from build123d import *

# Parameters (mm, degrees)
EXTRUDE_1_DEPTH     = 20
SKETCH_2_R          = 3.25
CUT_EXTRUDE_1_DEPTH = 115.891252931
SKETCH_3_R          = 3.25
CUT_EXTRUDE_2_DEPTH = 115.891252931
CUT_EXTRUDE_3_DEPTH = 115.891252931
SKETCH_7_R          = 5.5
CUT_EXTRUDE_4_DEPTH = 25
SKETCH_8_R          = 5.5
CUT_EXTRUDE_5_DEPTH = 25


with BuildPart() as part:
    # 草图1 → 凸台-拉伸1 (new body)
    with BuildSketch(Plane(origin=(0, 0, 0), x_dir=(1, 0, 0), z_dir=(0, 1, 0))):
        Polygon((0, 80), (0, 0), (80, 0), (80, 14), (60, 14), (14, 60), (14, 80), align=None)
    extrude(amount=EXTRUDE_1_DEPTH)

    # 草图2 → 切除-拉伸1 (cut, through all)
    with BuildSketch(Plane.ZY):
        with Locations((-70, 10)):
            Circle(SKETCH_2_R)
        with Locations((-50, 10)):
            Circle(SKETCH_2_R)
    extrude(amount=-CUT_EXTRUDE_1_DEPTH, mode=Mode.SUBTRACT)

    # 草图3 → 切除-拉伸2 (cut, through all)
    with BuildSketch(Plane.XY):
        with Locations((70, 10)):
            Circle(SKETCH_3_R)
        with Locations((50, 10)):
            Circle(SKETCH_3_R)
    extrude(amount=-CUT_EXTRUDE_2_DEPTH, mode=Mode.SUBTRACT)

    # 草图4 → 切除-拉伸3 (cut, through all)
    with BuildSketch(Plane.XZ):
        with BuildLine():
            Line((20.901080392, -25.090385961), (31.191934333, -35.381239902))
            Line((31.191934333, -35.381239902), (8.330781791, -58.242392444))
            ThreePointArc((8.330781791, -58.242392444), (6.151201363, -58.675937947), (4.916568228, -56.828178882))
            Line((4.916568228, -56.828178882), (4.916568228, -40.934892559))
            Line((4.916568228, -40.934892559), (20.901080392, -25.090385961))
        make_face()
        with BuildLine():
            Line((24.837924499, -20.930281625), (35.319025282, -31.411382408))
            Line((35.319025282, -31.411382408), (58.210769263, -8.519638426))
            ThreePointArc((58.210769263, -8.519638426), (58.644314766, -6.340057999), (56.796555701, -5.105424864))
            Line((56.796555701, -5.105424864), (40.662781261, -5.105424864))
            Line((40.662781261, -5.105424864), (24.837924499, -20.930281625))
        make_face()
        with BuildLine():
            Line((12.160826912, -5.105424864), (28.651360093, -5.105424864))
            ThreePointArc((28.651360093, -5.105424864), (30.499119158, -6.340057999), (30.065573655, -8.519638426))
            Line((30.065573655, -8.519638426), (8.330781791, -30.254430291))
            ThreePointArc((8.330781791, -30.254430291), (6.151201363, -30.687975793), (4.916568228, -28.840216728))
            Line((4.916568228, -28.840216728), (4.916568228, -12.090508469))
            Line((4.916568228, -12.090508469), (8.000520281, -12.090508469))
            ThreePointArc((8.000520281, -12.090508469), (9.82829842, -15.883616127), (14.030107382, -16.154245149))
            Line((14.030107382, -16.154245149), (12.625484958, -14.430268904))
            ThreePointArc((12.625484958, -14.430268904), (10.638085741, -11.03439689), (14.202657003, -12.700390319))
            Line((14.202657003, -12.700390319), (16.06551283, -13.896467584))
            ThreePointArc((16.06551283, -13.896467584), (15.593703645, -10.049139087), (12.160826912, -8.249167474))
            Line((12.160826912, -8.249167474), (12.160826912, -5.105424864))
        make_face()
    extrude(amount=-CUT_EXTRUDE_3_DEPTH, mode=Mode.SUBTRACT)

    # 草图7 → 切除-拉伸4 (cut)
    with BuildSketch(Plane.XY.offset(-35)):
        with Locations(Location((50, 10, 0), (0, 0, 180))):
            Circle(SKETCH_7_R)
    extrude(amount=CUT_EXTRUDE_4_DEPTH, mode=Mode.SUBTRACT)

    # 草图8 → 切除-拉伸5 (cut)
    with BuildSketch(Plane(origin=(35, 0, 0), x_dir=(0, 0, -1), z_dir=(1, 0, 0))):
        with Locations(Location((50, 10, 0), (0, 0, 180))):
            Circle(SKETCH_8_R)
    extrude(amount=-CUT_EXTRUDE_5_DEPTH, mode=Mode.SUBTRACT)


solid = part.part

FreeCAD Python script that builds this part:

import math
import FreeCAD as App
import Part
import Sketcher
from FreeCAD import Vector
Q = App.Units.Quantity

doc = App.newDocument("Part")
body = doc.addObject("PartDesign::Body", "Body")

# Sketch on XZ plane
sketch1 = body.newObject("Sketcher::SketchObject", "Sketch")
sketch1.AttachmentSupport = (doc.getObject("XZ_Plane"), [""])
sketch1.MapMode = "FlatFace"
sketch1.addGeometry([
    Part.LineSegment(Vector(0, -80, 0), Vector(0, 0, 0)),  # 0
    Part.LineSegment(Vector(0, 0, 0), Vector(80, 0, 0)),  # 1
    Part.LineSegment(Vector(80, 0, 0), Vector(80, -14, 0)),  # 2
    Part.LineSegment(Vector(80, -14, 0), Vector(60, -14, 0)),  # 3
    Part.LineSegment(Vector(60, -14, 0), Vector(14, -60, 0)),  # 4
    Part.LineSegment(Vector(14, -60, 0), Vector(14, -80, 0)),  # 5
    Part.LineSegment(Vector(14, -80, 0), Vector(0, -80, 0)),  # 6
], False)
sketch1.addConstraint([
    Sketcher.Constraint("Coincident", 0, 2, 1, 1),
    Sketcher.Constraint("Coincident", 1, 2, 2, 1),
    Sketcher.Constraint("Coincident", 2, 2, 3, 1),
    Sketcher.Constraint("Coincident", 3, 2, 4, 1),
    Sketcher.Constraint("Coincident", 4, 2, 5, 1),
    Sketcher.Constraint("Coincident", 5, 2, 6, 1),
    Sketcher.Constraint("Coincident", 6, 2, 0, 1),
    Sketcher.Constraint("Vertical", 0),
    Sketcher.Constraint("Horizontal", 1),
    Sketcher.Constraint("Vertical", 2),
    Sketcher.Constraint("Horizontal", 3),
    Sketcher.Constraint("Vertical", 5),
    Sketcher.Constraint("Horizontal", 6),
    Sketcher.Constraint("Coincident", 0, 2, -1, 1),
    Sketcher.Constraint("Equal", 1, 0),
    Sketcher.Constraint("Equal", 6, 2),
    Sketcher.Constraint("Equal", 3, 5),
    Sketcher.Constraint("DistanceX", 1, 1, 1, 2, 80.0),
    Sketcher.Constraint("DistanceX", 3, 2, 3, 1, 20.0),
    Sketcher.Constraint("DistanceX", 6, 2, 6, 1, 14.0),
])
pad1 = body.newObject("PartDesign::Pad", "Pad")
pad1.Profile = sketch1
pad1.Length = 20
pad1.Reversed = True

# Sketch on YZ plane
sketch2 = body.newObject("Sketcher::SketchObject", "Sketch001")
sketch2.AttachmentSupport = (doc.getObject("YZ_Plane"), [""])
sketch2.MapMode = "FlatFace"
sketch2.addGeometry([
    Part.Circle(Vector(10, -70, 0), Vector(0, 0, 1), 3.2),
    Part.Circle(Vector(10, -50, 0), Vector(0, 0, 1), 3.2),
], False)
sketch2.addConstraint([
    Sketcher.Constraint("Equal", 0, 1),
    Sketcher.Constraint("Vertical", 0, 3, 1, 3),
    Sketcher.Constraint("Diameter", 0, 6.5),
    Sketcher.Constraint("DistanceX", -1, 1, 0, 3, 10.0),
    Sketcher.Constraint("DistanceY", 0, 3, -1, 1, 70.0),
    Sketcher.Constraint("DistanceY", 1, 3, -1, 1, 50.0),
])
pocket1 = body.newObject("PartDesign::Pocket", "Pocket")
pocket1.Profile = sketch2
pocket1.Type = "ThroughAll"
pocket1.Reversed = True

# Sketch on XY plane
sketch3 = body.newObject("Sketcher::SketchObject", "Sketch002")
sketch3.AttachmentSupport = (doc.getObject("XY_Plane"), [""])
sketch3.MapMode = "FlatFace"
sketch3.addGeometry([
    Part.Circle(Vector(70, 10, 0), Vector(0, 0, 1), 3.2),
    Part.Circle(Vector(50, 10, 0), Vector(0, 0, 1), 3.2),
], False)
sketch3.addConstraint([
    Sketcher.Constraint("Equal", 0, 1),
    Sketcher.Constraint("Horizontal", 0, 3, 1, 3),
    Sketcher.Constraint("Diameter", 0, 6.5),
    Sketcher.Constraint("DistanceX", -1, 1, 0, 3, 70.0),
    Sketcher.Constraint("DistanceY", -1, 1, 0, 3, 10.0),
    Sketcher.Constraint("DistanceX", -1, 1, 1, 3, 50.0),
])
pocket2 = body.newObject("PartDesign::Pocket", "Pocket001")
pocket2.Profile = sketch3
pocket2.Type = "ThroughAll"

# Sketch on XZ plane
sketch4 = body.newObject("Sketcher::SketchObject", "Sketch003")
sketch4.AttachmentSupport = (doc.getObject("XZ_Plane"), [""])
sketch4.MapMode = "FlatFace"
sketch4.addGeometry([
    Part.LineSegment(Vector(31.2, -35.4, 0), Vector(20.9, -25.1, 0)),  # 0
    Part.LineSegment(Vector(20.9, -25.1, 0), Vector(4.9, -40.9, 0)),  # 1
    Part.LineSegment(Vector(4.9, -40.9, 0), Vector(4.9, -56.8, 0)),  # 2
    Part.ArcOfCircle(Part.Circle(Vector(6.9, -56.8, 0), Vector(0, 0, 1), 2), math.radians(180), math.radians(315)),  # 3
    Part.LineSegment(Vector(8.3, -58.2, 0), Vector(31.2, -35.4, 0)),  # 4
    Part.LineSegment(Vector(24.8, -20.9, 0), Vector(35.3, -31.4, 0)),  # 5
    Part.LineSegment(Vector(35.3, -31.4, 0), Vector(58.2, -8.5, 0)),  # 6
    Part.ArcOfCircle(Part.Circle(Vector(56.8, -7.1, 0), Vector(0, 0, 1), 2), math.radians(-45), math.radians(90)),  # 7
    Part.LineSegment(Vector(56.8, -5.1, 0), Vector(40.7, -5.1, 0)),  # 8
    Part.LineSegment(Vector(40.7, -5.1, 0), Vector(24.8, -20.9, 0)),  # 9
    Part.LineSegment(Vector(28.7, -5.1, 0), Vector(12.2, -5.1, 0)),  # 10
    Part.LineSegment(Vector(12.2, -5.1, 0), Vector(12.2, -8.2, 0)),  # 11
    Part.ArcOfCircle(Part.Circle(Vector(12.2, -12.4, 0), Vector(0, 0, 1), 4.2), math.radians(-21), math.radians(90)),  # 12
    Part.LineSegment(Vector(16.1, -13.9, 0), Vector(14.2, -12.7, 0)),  # 13
    Part.ArcOfCircle(Part.Circle(Vector(12.2, -12.4, 0), Vector(0, 0, 1), 2.1), math.radians(-8), math.radians(283)),  # 14
    Part.LineSegment(Vector(12.6, -14.4, 0), Vector(14, -16.2, 0)),  # 15
    Part.ArcOfCircle(Part.Circle(Vector(12.2, -12.4, 0), Vector(0, 0, 1), 4.2), math.radians(175), math.radians(297)),  # 16
    Part.LineSegment(Vector(8, -12.1, 0), Vector(4.9, -12.1, 0)),  # 17
    Part.LineSegment(Vector(4.9, -12.1, 0), Vector(4.9, -28.8, 0)),  # 18
    Part.ArcOfCircle(Part.Circle(Vector(6.9, -28.8, 0), Vector(0, 0, 1), 2), math.radians(180), math.radians(315)),  # 19
    Part.LineSegment(Vector(8.3, -30.3, 0), Vector(30.1, -8.5, 0)),  # 20
    Part.ArcOfCircle(Part.Circle(Vector(28.7, -7.1, 0), Vector(0, 0, 1), 2), math.radians(-45), math.radians(90)),  # 21
], False)
sketch4.addConstraint([
    Sketcher.Constraint("Coincident", 0, 2, 1, 1),
    Sketcher.Constraint("Coincident", 1, 2, 2, 1),
    Sketcher.Constraint("Tangent", 2, 2, 3, 1),
    Sketcher.Constraint("Tangent", 3, 2, 4, 1),
    Sketcher.Constraint("Coincident", 4, 2, 0, 1),
    Sketcher.Constraint("Coincident", 5, 2, 6, 1),
    Sketcher.Constraint("Tangent", 6, 2, 7, 1),
    Sketcher.Constraint("Tangent", 7, 2, 8, 1),
    Sketcher.Constraint("Coincident", 8, 2, 9, 1),
    Sketcher.Constraint("Coincident", 9, 2, 5, 1),
    Sketcher.Constraint("Coincident", 10, 2, 11, 1),
    Sketcher.Constraint("Coincident", 11, 2, 12, 2),
    Sketcher.Constraint("Coincident", 12, 1, 13, 1),
    Sketcher.Constraint("Coincident", 13, 2, 14, 1),
    Sketcher.Constraint("Coincident", 14, 2, 15, 1),
    Sketcher.Constraint("Coincident", 15, 2, 16, 2),
    Sketcher.Constraint("Coincident", 16, 1, 17, 1),
    Sketcher.Constraint("Coincident", 17, 2, 18, 1),
    Sketcher.Constraint("Tangent", 18, 2, 19, 1),
    Sketcher.Constraint("Tangent", 19, 2, 20, 1),
    Sketcher.Constraint("Tangent", 20, 2, 21, 1),
    Sketcher.Constraint("Tangent", 21, 2, 10, 1),
    Sketcher.Constraint("Vertical", 2),
    Sketcher.Constraint("Horizontal", 8),
    Sketcher.Constraint("Horizontal", 10),
    Sketcher.Constraint("Vertical", 11),
    Sketcher.Constraint("Horizontal", 17),
    Sketcher.Constraint("Vertical", 18),
    Sketcher.Constraint("Coincident", 14, 3, 12, 3),
    Sketcher.Constraint("Coincident", 16, 3, 12, 3),
    Sketcher.Constraint("Equal", 3, 7),
    Sketcher.Constraint("Equal", 12, 16),
    Sketcher.Constraint("Equal", 7, 19),
    Sketcher.Constraint("Equal", 19, 21),
    Sketcher.Constraint("Perpendicular", 0, 4),
    Sketcher.Constraint("Perpendicular", 4, 5),
    Sketcher.Constraint("Perpendicular", 5, 6),
    Sketcher.Constraint("Parallel", 6, 9),
    Sketcher.Constraint("Parallel", 9, 20),
    Sketcher.Constraint("Horizontal", 7, 3, 21, 3),
    Sketcher.Constraint("Vertical", 3, 3, 19, 3),
    Sketcher.Constraint("Vertical", 16, 3, 10, 2),
    Sketcher.Constraint("Radius", 3, 2.0),
    Sketcher.Constraint("Angle", 0, Q("135 deg")),
    Sketcher.Constraint("Radius", 12, 4.173549),
    Sketcher.Constraint("Radius", 14, 2.060624),
    Sketcher.Constraint("DistanceY", 18, 2, 18, 1, 16.749708),
    Sketcher.Constraint("DistanceY", 19, 3, 16, 3, 16.4175),
    Sketcher.Constraint("DistanceY", 3, 2, 1, 2, 17.3075),
    Sketcher.Constraint("DistanceX", 3, 2, 0, 2, 12.570299),
    Sketcher.Constraint("DistanceX", 16, 3, 5, 2, 23.158198),
    Sketcher.Constraint("DistanceY", 4, 2, 6, 2, 26.861601),
    Sketcher.Constraint("DistanceX", 9, 2, 5, 2, 10.481101),
    Sketcher.Constraint("DistanceY", 12, 1, 11, 2, 5.6473),
    Sketcher.Constraint("DistanceY", 14, 2, 12, 1, 0.533801),
    Sketcher.Constraint("Distance", 4, 32.330552),
    Sketcher.Constraint("Distance", 15, 2.223749),
    Sketcher.Constraint("DistanceX", 10, 2, 10, 1, 16.490533),
    Sketcher.Constraint("DistanceX", 17, 2, 17, 1, 3.083952),
    Sketcher.Constraint("DistanceX", -1, 1, 3, 3, 6.916568),
    Sketcher.Constraint("DistanceY", 3, 3, -1, 1, 56.828179),
    Sketcher.Constraint("DistanceX", -1, 1, 6, 2, 58.210769),
    Sketcher.Constraint("DistanceY", 13, 2, -1, 1, 12.70039),
])
pocket3 = body.newObject("PartDesign::Pocket", "Pocket002")
pocket3.Profile = sketch4
pocket3.Type = "ThroughAll"

# Sketch on XY plane
sketch5 = body.newObject("Sketcher::SketchObject", "Sketch004")
sketch5.AttachmentSupport = (doc.getObject("XY_Plane"), [""])
sketch5.MapMode = "FlatFace"
sketch5.AttachmentOffset = App.Placement(Vector(0, 0, -35), App.Rotation())
sketch5.addGeometry(Part.Circle(Vector(50, 10, 0), Vector(0, 0, 1), 6), False)
sketch5.addConstraint([
    Sketcher.Constraint("Diameter", 0, 11.0),
    Sketcher.Constraint("DistanceX", -1, 1, 0, 3, 50.0),
    Sketcher.Constraint("DistanceY", -1, 1, 0, 3, 10.0),
])
pocket4 = body.newObject("PartDesign::Pocket", "Pocket003")
pocket4.Profile = sketch5
pocket4.Length = 25
pocket4.Reversed = True

# Sketch on YZ plane
sketch6 = body.newObject("Sketcher::SketchObject", "Sketch005")
sketch6.AttachmentSupport = (doc.getObject("YZ_Plane"), [""])
sketch6.MapMode = "FlatFace"
sketch6.AttachmentOffset = App.Placement(Vector(0, 0, 35), App.Rotation())
sketch6.addGeometry(Part.Circle(Vector(10, -50, 0), Vector(0, 0, 1), 6), False)
sketch6.addConstraint([
    Sketcher.Constraint("Diameter", 0, 11.0),
    Sketcher.Constraint("DistanceX", -1, 1, 0, 3, 10.0),
    Sketcher.Constraint("DistanceY", 0, 3, -1, 1, 50.0),
])
pocket5 = body.newObject("PartDesign::Pocket", "Pocket004")
pocket5.Profile = sketch6
pocket5.Length = 25

doc.recompute()
